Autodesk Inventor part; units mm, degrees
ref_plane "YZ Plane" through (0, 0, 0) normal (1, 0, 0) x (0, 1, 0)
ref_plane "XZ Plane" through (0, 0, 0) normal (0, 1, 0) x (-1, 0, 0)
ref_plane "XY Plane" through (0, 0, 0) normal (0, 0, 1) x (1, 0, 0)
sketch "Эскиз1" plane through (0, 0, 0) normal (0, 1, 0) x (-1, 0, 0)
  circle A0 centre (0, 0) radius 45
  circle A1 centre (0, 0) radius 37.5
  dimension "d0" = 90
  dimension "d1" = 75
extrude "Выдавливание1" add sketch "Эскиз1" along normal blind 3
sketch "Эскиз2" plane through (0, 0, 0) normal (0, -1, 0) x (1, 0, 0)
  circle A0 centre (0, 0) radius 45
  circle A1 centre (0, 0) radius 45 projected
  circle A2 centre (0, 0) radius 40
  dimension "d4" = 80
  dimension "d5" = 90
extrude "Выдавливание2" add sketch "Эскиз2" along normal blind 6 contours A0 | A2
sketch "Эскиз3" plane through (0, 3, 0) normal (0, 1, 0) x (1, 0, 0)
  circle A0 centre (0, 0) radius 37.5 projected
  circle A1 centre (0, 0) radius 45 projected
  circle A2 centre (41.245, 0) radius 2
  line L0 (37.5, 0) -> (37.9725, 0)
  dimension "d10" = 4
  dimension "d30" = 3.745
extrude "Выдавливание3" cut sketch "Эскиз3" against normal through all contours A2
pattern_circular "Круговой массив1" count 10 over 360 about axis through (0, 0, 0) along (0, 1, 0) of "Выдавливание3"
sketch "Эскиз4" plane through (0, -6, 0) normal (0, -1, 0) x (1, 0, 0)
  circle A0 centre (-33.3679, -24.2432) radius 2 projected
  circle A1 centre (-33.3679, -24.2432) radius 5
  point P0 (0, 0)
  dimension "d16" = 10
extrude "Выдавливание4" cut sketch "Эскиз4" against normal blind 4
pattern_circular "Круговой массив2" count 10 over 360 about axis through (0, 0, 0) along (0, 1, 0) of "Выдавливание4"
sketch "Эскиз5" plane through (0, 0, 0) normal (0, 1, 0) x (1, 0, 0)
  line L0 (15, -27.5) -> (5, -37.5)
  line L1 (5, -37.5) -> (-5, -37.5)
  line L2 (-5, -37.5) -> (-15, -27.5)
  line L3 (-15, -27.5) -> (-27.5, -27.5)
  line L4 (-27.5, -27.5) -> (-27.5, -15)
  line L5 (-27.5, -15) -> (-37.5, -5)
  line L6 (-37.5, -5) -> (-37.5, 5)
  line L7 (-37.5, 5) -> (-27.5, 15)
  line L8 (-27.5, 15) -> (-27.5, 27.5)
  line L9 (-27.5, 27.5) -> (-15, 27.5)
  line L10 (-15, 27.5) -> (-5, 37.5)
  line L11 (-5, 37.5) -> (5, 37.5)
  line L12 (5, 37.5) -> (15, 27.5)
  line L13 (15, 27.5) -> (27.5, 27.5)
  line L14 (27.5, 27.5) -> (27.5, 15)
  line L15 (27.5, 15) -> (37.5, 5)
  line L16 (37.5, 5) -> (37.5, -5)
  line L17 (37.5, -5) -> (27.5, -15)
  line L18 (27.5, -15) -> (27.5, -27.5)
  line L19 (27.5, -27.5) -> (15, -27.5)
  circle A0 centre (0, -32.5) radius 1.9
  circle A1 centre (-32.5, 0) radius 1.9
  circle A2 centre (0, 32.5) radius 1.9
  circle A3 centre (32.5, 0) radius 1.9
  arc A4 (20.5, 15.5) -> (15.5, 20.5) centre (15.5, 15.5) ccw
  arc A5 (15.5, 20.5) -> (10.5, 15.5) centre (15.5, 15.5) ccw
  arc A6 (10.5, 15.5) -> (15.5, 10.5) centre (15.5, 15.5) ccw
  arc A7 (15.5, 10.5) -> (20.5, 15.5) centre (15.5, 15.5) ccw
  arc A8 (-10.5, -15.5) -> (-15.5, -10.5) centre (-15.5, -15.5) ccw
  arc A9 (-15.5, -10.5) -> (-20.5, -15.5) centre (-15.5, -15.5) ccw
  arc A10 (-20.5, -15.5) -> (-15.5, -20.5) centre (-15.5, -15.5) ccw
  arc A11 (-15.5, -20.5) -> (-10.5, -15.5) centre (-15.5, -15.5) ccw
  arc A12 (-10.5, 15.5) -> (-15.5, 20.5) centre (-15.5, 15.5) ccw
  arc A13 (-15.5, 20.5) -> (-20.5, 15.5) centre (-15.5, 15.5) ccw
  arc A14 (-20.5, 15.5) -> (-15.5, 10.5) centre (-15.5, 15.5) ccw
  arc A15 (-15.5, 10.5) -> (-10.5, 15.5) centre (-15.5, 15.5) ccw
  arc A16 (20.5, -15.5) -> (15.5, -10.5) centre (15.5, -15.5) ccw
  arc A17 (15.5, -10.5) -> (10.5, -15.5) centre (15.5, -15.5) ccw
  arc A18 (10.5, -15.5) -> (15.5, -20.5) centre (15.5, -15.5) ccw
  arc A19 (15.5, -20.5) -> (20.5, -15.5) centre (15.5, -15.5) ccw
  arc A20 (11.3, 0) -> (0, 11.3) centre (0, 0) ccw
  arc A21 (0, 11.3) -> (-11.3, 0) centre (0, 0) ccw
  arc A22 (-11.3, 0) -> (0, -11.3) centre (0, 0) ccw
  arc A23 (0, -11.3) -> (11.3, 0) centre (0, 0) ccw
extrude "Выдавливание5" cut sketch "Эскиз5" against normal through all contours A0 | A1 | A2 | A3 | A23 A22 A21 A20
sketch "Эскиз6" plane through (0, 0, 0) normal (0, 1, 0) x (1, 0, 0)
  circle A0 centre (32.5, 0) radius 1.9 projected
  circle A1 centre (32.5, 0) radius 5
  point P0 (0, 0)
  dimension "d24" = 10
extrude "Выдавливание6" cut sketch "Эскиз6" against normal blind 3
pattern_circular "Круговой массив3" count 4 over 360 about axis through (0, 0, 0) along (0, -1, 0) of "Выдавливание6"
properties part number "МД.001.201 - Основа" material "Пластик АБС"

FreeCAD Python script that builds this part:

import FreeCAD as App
import Part
import Sketcher

V = App.Vector
Q = App.Units.Quantity

doc = App.newDocument("Part")
body = doc.addObject("PartDesign::Body", "Body")

# Sketch on XZ plane
sketch1 = body.newObject("Sketcher::SketchObject", "Sketch")
sketch1.AttachmentSupport = (doc.getObject("XZ_Plane"), [""])
sketch1.MapMode = "FlatFace"
sketch1.addGeometry([
    Part.Circle(V(0, 0, 0), V(0, 0, 1), 45),
    Part.Circle(V(0, 0, 0), V(0, 0, 1), 37.5),
], False)
sketch1.addConstraint([
    Sketcher.Constraint("Coincident", 0, 3, -1, 1),
    Sketcher.Constraint("Coincident", 1, 3, -1, 1),
    Sketcher.Constraint("Diameter", 0, Q("90 mm")),
    Sketcher.Constraint("Diameter", 1, Q("75 mm")),
])
pad1 = body.newObject("PartDesign::Pad", "Pad")
pad1.Profile = sketch1
pad1.Length = 3
pad1.Reversed = True

# Sketch on XZ plane
sketch2 = body.newObject("Sketcher::SketchObject", "Sketch001")
sketch2.AttachmentSupport = (doc.getObject("XZ_Plane"), [""])
sketch2.MapMode = "FlatFace"
sketch2.addGeometry(Part.Circle(V(0, 0, 0), V(0, 0, 1), 45), False)
sketch2.addConstraint([
    Sketcher.Constraint("Coincident", 0, 3, -1, 1),
    Sketcher.Constraint("Diameter", 0, Q("90 mm")),
])
pad2 = body.newObject("PartDesign::Pad", "Pad001")
pad2.Profile = sketch2
pad2.Length = 6

# Sketch on XZ plane
sketch3 = body.newObject("Sketcher::SketchObject", "Sketch002")
sketch3.AttachmentSupport = (doc.getObject("XZ_Plane"), [""])
sketch3.MapMode = "FlatFace"
sketch3.AttachmentOffset = App.Placement(V(0, 0, -3), App.Rotation())
sketch3.addGeometry(Part.Circle(V(41.245, 0, 0), V(0, 0, 1), 2), False)
sketch3.addConstraint([
    Sketcher.Constraint("PointOnObject", 0, 3, -1),
    Sketcher.Constraint("Diameter", 0, Q("4 mm")),
    Sketcher.Constraint("DistanceX", -1, 1, 0, 3, Q("41.245 mm")),
])
pocket1 = body.newObject("PartDesign::Pocket", "Pocket")
pocket1.Profile = sketch3
pocket1.Type = "ThroughAll"
pocket1.Reversed = True
doc.recompute()

polarpattern = body.newObject("PartDesign::PolarPattern", "PolarPattern")
polarpattern.Originals = [pocket1]
polarpattern.Axis = (doc.getObject("Y_Axis"), [""])
polarpattern.Angle = 360
polarpattern.Occurrences = 10
body.Tip = polarpattern

# Sketch on XZ plane
sketch4 = body.newObject("Sketcher::SketchObject", "Sketch003")
sketch4.AttachmentSupport = (doc.getObject("XZ_Plane"), [""])
sketch4.MapMode = "FlatFace"
sketch4.AttachmentOffset = App.Placement(V(0, 0, 6), App.Rotation())
sketch4.addGeometry([
    Part.Circle(V(-33.3679, -24.2432, 0), V(0, 0, 1), 5),
    Part.Circle(V(-33.3679, -24.2432, 0), V(0, 0, 1), 2),
], False)
sketch4.addConstraint([
    Sketcher.Constraint("Coincident", 1, 3, 0, 3),
    Sketcher.Constraint("Diameter", 0, Q("10 mm")),
    Sketcher.Constraint("Diameter", 1, Q("4 mm")),
    Sketcher.Constraint("DistanceX", 0, 3, -1, 1, Q("33.368 mm")),
    Sketcher.Constraint("DistanceY", 0, 3, -1, 1, Q("24.2432 mm")),
])
pocket2 = body.newObject("PartDesign::Pocket", "Pocket001")
pocket2.Profile = sketch4
pocket2.Length = 4
doc.recompute()

polarpattern2 = body.newObject("PartDesign::PolarPattern", "PolarPattern001")
polarpattern2.Originals = [pocket2]
polarpattern2.Axis = (doc.getObject("Y_Axis"), [""])
polarpattern2.Angle = 360
polarpattern2.Occurrences = 10
body.Tip = polarpattern2

# Sketch on XZ plane
sketch5 = body.newObject("Sketcher::SketchObject", "Sketch004")
sketch5.AttachmentSupport = (doc.getObject("XZ_Plane"), [""])
sketch5.MapMode = "FlatFace"
sketch5.addGeometry([
    Part.Circle(V(0, 32.5, 0), V(0, 0, 1), 1.9),  # 0
    Part.Circle(V(-32.5, 0, 0), V(0, 0, 1), 1.9),  # 1
    Part.Circle(V(0, -32.5, 0), V(0, 0, 1), 1.9),  # 2
    Part.Circle(V(32.5, 0, 0), V(0, 0, 1), 1.9),  # 3
    Part.Circle(V(0, 0, 0), V(0, 0, 1), 11.3),  # 4
], False)
sketch5.addConstraint([
    Sketcher.Constraint("Coincident", 4, 3, -1, 1),
    Sketcher.Constraint("Equal", 0, 1),
    Sketcher.Constraint("Equal", 1, 2),
    Sketcher.Constraint("Equal", 2, 3),
    Sketcher.Constraint("Symmetric", 0, 3, 2, 3, -1, 1),
    Sketcher.Constraint("Symmetric", 1, 3, 3, 3, -1, 1),
    Sketcher.Constraint("PointOnObject", 0, 3, -2),
    Sketcher.Constraint("PointOnObject", 1, 3, -1),
    Sketcher.Constraint("Diameter", 0, Q("3.8 mm")),
    Sketcher.Constraint("Diameter", 4, Q("22.6 mm")),
    Sketcher.Constraint("DistanceY", 2, 3, 0, 3, Q("65 mm")),
    Sketcher.Constraint("DistanceX", 1, 3, 3, 3, Q("65 mm")),
])
pocket3 = body.newObject("PartDesign::Pocket", "Pocket002")
pocket3.Profile = sketch5
pocket3.Type = "ThroughAll"
pocket3.Reversed = True

# Sketch on XZ plane
sketch6 = body.newObject("Sketcher::SketchObject", "Sketch005")
sketch6.AttachmentSupport = (doc.getObject("XZ_Plane"), [""])
sketch6.MapMode = "FlatFace"
sketch6.addGeometry([
    Part.Circle(V(32.5, 0, 0), V(0, 0, 1), 5),
    Part.Circle(V(32.5, 0, 0), V(0, 0, 1), 1.9),
], False)
sketch6.addConstraint([
    Sketcher.Constraint("Coincident", 1, 3, 0, 3),
    Sketcher.Constraint("PointOnObject", 0, 3, -1),
    Sketcher.Constraint("Diameter", 0, Q("10 mm")),
    Sketcher.Constraint("Diameter", 1, Q("3.8 mm")),
    Sketcher.Constraint("DistanceX", -1, 1, 0, 3, Q("32.5 mm")),
])
pocket4 = body.newObject("PartDesign::Pocket", "Pocket003")
pocket4.Profile = sketch6
pocket4.Length = 3
pocket4.Reversed = True
doc.recompute()

polarpattern3 = body.newObject("PartDesign::PolarPattern", "PolarPattern002")
polarpattern3.Originals = [pocket4]
polarpattern3.Axis = (doc.getObject("Y_Axis"), [""])
polarpattern3.Angle = 360
polarpattern3.Occurrences = 4
body.Tip = polarpattern3

doc.recompute()
